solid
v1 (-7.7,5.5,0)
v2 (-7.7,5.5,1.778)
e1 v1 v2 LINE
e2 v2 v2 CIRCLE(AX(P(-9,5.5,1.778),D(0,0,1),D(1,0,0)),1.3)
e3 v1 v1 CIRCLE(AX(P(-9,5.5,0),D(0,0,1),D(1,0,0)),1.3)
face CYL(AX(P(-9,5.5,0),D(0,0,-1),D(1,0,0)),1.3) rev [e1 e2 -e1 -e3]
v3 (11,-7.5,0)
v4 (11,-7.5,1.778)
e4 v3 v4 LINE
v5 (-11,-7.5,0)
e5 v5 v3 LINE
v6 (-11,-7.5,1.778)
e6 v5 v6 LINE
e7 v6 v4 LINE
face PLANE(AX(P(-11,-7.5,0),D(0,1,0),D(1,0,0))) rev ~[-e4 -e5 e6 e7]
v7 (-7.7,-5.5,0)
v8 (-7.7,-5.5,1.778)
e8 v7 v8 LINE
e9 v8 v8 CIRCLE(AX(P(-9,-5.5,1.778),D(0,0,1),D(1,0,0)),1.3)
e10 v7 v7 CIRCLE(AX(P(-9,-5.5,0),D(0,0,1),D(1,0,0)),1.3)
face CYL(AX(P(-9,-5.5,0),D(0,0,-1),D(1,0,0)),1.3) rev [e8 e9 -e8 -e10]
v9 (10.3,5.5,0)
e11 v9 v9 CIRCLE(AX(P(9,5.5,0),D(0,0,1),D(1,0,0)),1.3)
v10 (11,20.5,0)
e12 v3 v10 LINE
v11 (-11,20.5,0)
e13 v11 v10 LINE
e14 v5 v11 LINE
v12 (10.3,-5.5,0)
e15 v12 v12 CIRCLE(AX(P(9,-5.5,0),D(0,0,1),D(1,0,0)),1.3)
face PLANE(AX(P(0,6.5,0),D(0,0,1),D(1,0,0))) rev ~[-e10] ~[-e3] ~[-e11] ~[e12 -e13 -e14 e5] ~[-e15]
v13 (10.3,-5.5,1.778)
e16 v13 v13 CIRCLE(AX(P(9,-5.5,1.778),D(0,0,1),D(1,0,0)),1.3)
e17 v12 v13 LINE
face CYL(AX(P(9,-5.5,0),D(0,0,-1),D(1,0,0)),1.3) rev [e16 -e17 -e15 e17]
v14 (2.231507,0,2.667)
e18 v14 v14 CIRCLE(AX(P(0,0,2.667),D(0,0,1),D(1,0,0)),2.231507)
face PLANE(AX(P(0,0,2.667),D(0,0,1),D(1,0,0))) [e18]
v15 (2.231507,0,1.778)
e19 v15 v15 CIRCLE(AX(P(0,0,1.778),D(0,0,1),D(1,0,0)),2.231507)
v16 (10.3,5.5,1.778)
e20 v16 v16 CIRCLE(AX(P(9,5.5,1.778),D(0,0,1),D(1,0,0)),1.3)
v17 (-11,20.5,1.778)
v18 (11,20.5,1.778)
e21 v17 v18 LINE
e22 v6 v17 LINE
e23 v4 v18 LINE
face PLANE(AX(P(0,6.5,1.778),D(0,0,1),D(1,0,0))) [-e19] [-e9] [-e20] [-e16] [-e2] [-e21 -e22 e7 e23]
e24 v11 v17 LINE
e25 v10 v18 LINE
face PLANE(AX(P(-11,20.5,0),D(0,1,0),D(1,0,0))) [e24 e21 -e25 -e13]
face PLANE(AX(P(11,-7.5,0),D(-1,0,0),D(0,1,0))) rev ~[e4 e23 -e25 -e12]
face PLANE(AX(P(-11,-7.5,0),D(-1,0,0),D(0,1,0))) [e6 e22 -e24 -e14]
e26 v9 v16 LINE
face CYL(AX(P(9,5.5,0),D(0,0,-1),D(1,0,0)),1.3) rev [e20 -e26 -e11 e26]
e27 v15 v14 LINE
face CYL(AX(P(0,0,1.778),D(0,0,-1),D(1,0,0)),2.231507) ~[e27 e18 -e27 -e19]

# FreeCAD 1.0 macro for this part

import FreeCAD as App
import Part
import Sketcher
from FreeCAD import Vector
Q = App.Units.Quantity

doc = App.newDocument("Part")
body = doc.addObject("PartDesign::Body", "Body")

# Sketch on XY plane
sketch1 = doc.addObject("Sketcher::SketchObject", "Sketch")
body.addObject(sketch1)
sketch1.AttachmentSupport = (doc.XY_Plane, [""])
sketch1.MapMode = "FlatFace"
sketch1.addGeometry([
    Part.LineSegment(Vector(-11, 20.5, 0), Vector(-11, -7.5, 0)),  # 0
    Part.LineSegment(Vector(-11, -7.5, 0), Vector(11, -7.5, 0)),  # 1
    Part.LineSegment(Vector(11, -7.5, 0), Vector(11, 20.5, 0)),  # 2
    Part.LineSegment(Vector(11, 20.5, 0), Vector(-11, 20.5, 0)),  # 3
    Part.Circle(Vector(-9, -5.5, 0), Vector(0, 0, 1), 1.3),  # 4
    Part.Circle(Vector(9, -5.5, 0), Vector(0, 0, 1), 1.3),  # 5
    Part.Circle(Vector(-9, 5.5, 0), Vector(0, 0, 1), 1.3),  # 6
    Part.Circle(Vector(9, 5.5, 0), Vector(0, 0, 1), 1.3),  # 7
], False)
sketch1.addConstraint([
    Sketcher.Constraint("Coincident", 0, 2, 1, 1),
    Sketcher.Constraint("Coincident", 1, 2, 2, 1),
    Sketcher.Constraint("Coincident", 2, 2, 3, 1),
    Sketcher.Constraint("Coincident", 3, 2, 0, 1),
    Sketcher.Constraint("Vertical", 0),
    Sketcher.Constraint("Horizontal", 1),
    Sketcher.Constraint("Vertical", 2),
    Sketcher.Constraint("Horizontal", 3),
    Sketcher.Constraint("Equal", 4, 5),
    Sketcher.Constraint("Equal", 5, 6),
    Sketcher.Constraint("Equal", 6, 7),
    Sketcher.Constraint("Symmetric", 5, 3, 6, 3, -1, 1),
    Sketcher.Constraint("Symmetric", 4, 3, 7, 3, -1, 1),
    Sketcher.Constraint("Symmetric", 4, 3, 5, 3, -2),
    Sketcher.Constraint("Diameter", 4, Q("2.6 mm")),
    Sketcher.Constraint("DistanceX", 1, 1, 1, 2, Q("22 mm")),
    Sketcher.Constraint("DistanceY", 0, 2, 0, 1, Q("28 mm")),
    Sketcher.Constraint("DistanceX", 4, 3, -1, 1, Q("9 mm")),
    Sketcher.Constraint("DistanceX", 0, 2, -1, 1, Q("11 mm")),
    Sketcher.Constraint("DistanceY", 4, 3, 6, 3, Q("11 mm")),
    Sketcher.Constraint("DistanceY", 0, 2, 4, 3, Q("2 mm")),
])
pad1 = doc.addObject("PartDesign::Pad", "Pad")
body.addObject(pad1)
pad1.Profile = sketch1
pad1.Length = 1.778

# Sketch on XY plane
sketch2 = doc.addObject("Sketcher::SketchObject", "Sketch001")
body.addObject(sketch2)
sketch2.AttachmentSupport = (doc.XY_Plane, [""])
sketch2.MapMode = "FlatFace"
sketch2.AttachmentOffset = App.Placement(Vector(0, 0, 1.778), App.Rotation())
sketch2.addGeometry(Part.Circle(Vector(0, 0, 0), Vector(0, 0, 1), 2.2), False)
sketch2.addConstraint([
    Sketcher.Constraint("Coincident", 0, 3, -1, 1),
    Sketcher.Constraint("Diameter", 0, Q("4.463014 mm")),
])
pad2 = doc.addObject("PartDesign::Pad", "Pad001")
body.addObject(pad2)
pad2.Profile = sketch2
pad2.Length = 0.889

doc.recompute()
